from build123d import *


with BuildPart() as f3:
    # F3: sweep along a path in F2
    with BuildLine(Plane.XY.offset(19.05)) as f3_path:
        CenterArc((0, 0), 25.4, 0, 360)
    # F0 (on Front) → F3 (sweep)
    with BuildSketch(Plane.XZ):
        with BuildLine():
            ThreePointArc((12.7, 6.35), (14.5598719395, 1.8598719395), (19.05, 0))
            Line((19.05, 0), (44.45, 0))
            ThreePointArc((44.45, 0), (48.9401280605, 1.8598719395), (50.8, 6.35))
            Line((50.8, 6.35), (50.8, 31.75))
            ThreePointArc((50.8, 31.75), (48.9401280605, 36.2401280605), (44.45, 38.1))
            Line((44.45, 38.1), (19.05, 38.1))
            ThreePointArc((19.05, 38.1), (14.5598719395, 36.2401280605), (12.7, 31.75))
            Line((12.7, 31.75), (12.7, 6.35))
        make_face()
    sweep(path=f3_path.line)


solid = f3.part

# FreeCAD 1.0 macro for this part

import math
import FreeCAD as App
import Part
import Sketcher

V = App.Vector
Q = App.Units.Quantity

doc = App.newDocument("Part")
body = doc.addObject("PartDesign::Body", "Body")

sketch1 = body.newObject("Sketcher::SketchObject", "Sketch")
sketch1.AttachmentSupport = (doc.getObject("XZ_Plane"), [""])
sketch1.MapMode = "FlatFace"
sketch1.addGeometry([
    Part.ArcOfCircle(Part.Circle(V(19.05, 6.35, 0), V(0, 0, 1), 6.35), math.radians(180), math.radians(270)),
    Part.LineSegment(V(19.05, 0, 0), V(44.45, 0, 0)),
    Part.ArcOfCircle(Part.Circle(V(44.45, 6.35, 0), V(0, 0, 1), 6.35), math.radians(-90), math.radians(0)),
    Part.LineSegment(V(50.8, 6.35, 0), V(50.8, 31.75, 0)),
    Part.ArcOfCircle(Part.Circle(V(44.45, 31.75, 0), V(0, 0, 1), 6.35), math.radians(0), math.radians(90)),
    Part.LineSegment(V(44.45, 38.1, 0), V(19.05, 38.1, 0)),
    Part.ArcOfCircle(Part.Circle(V(19.05, 31.75, 0), V(0, 0, 1), 6.35), math.radians(90), math.radians(180)),
    Part.LineSegment(V(12.7, 31.75, 0), V(12.7, 6.35, 0)),
], False)
sketch1.addConstraint([
    Sketcher.Constraint("Tangent", 0, 2, 1, 1),
    Sketcher.Constraint("Tangent", 1, 2, 2, 1),
    Sketcher.Constraint("Tangent", 2, 2, 3, 1),
    Sketcher.Constraint("Tangent", 3, 2, 4, 1),
    Sketcher.Constraint("Tangent", 4, 2, 5, 1),
    Sketcher.Constraint("Tangent", 5, 2, 6, 1),
    Sketcher.Constraint("Tangent", 6, 2, 7, 1),
    Sketcher.Constraint("Tangent", 7, 2, 0, 1),
    Sketcher.Constraint("Horizontal", 1),
    Sketcher.Constraint("Vertical", 3),
    Sketcher.Constraint("Horizontal", 5),
    Sketcher.Constraint("Vertical", 7),
    Sketcher.Constraint("Equal", 0, 2),
    Sketcher.Constraint("Equal", 2, 4),
    Sketcher.Constraint("Equal", 4, 6),
    Sketcher.Constraint("PointOnObject", 0, 2, -1),
    Sketcher.Constraint("Equal", 5, 3),
    Sketcher.Constraint("DistanceX", 1, 1, 1, 2, Q("1 in")),
    Sketcher.Constraint("Radius", 0, Q("0.25 in")),
    Sketcher.Constraint("DistanceX", -1, 1, 2, 2, Q("2 in")),
])

sketch2 = body.newObject("Sketcher::SketchObject", "Sketch001")
sketch2.AttachmentSupport = (doc.getObject("XY_Plane"), [""])
sketch2.MapMode = "FlatFace"
sketch2.AttachmentOffset = App.Placement(V(0, 0, 0.75 * 25.4), App.Rotation())
sketch2.addGeometry(Part.Circle(V(0, 0, 0), V(0, 0, 1), 25.4), False)
sketch2.addConstraint([
    Sketcher.Constraint("Coincident", 0, 3, -1, 1),
    Sketcher.Constraint("Diameter", 0, Q("2 in")),
])
doc.recompute()

additivepipe = body.newObject("PartDesign::AdditivePipe", "AdditivePipe")
additivepipe.Profile = sketch1
additivepipe.Spine = (sketch2, ["Edge1"])

doc.recompute()
